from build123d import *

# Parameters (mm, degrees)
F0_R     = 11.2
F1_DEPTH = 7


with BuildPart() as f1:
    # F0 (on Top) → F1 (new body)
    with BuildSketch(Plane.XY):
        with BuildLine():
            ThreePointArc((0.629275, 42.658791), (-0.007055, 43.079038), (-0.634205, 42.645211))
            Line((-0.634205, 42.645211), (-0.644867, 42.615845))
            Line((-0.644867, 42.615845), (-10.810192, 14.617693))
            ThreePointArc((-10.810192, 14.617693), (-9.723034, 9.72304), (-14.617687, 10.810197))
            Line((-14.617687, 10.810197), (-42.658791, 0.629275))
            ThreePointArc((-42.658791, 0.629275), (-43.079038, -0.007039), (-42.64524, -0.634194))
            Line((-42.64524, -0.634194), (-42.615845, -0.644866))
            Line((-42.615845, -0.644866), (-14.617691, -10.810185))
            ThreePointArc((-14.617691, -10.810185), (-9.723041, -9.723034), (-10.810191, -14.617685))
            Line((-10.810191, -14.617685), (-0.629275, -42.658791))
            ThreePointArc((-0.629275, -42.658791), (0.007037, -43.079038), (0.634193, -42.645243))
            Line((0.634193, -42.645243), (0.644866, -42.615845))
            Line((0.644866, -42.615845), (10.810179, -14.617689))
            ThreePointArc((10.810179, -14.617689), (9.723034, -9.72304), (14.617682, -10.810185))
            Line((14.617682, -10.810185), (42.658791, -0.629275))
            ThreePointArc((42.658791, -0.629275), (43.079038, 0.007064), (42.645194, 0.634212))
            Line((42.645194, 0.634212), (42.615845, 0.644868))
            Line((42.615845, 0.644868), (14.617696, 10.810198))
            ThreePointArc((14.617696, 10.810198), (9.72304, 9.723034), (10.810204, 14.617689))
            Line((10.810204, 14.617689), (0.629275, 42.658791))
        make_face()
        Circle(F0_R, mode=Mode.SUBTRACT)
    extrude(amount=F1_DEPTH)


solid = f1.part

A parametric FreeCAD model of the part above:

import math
import FreeCAD as App
import Part
import Sketcher
Q = App.Units.Quantity

doc = App.newDocument("Part")
params = doc.addObject("Spreadsheet::Sheet", "Params")
for row, (alias, value) in enumerate([
    ("sketch1_diameter", "22.4 mm"),
    ("pad1_length", "7 mm"),
], start=1):
    params.set(f"A{row}", alias)
    params.set(f"B{row}", "=" + value)
    params.setAlias(f"B{row}", alias)

body = doc.addObject("PartDesign::Body", "Body")

# Sketch on XY plane
sketch1 = body.newObject("Sketcher::SketchObject", "Sketch")
sketch1.AttachmentSupport = (doc.getObject("XY_Plane"), [""])
sketch1.MapMode = "FlatFace"
sketch1.addGeometry(Part.ArcOfCircle(Part.Circle(App.Vector(0.000262, 42.398235, 0), App.Vector(0, 0, 1), 0.680842), math.radians(22.500805), math.radians(158.730788)), False)
sketch1.addGeometry(Part.LineSegment(App.Vector(-0.634205, 42.645211, 0), App.Vector(-0.644867, 42.615845, 0)), False)
sketch1.addGeometry(Part.LineSegment(App.Vector(-0.644867, 42.615845, 0), App.Vector(-10.810192, 14.617693, 0)), False)
sketch1.addGeometry(Part.ArcOfCircle(Part.Circle(App.Vector(-11.824366, 11.824372, 0), App.Vector(0, 0, 1), 2.971732), math.radians(-160.04549), math.radians(70.045505)), False)
sketch1.addGeometry(Part.LineSegment(App.Vector(-14.617687, 10.810197, 0), App.Vector(-42.658791, 0.629275, 0)), False)
sketch1.addGeometry(Part.ArcOfCircle(Part.Circle(App.Vector(-42.398235, 0.000262, 0), App.Vector(0, 0, 1), 0.680843), math.radians(112.500839), math.radians(248.728135)), False)
sketch1.addGeometry(Part.LineSegment(App.Vector(-42.64524, -0.634194, 0), App.Vector(-42.615845, -0.644866, 0)), False)
sketch1.addGeometry(Part.LineSegment(App.Vector(-42.615845, -0.644866, 0), App.Vector(-14.617691, -10.810185, 0)), False)
sketch1.addGeometry(Part.ArcOfCircle(Part.Circle(App.Vector(-11.824373, -11.824367, 0), App.Vector(0, 0, 1), 2.971732), math.radians(-70.045353), math.radians(160.045353)), False)
sketch1.addGeometry(Part.LineSegment(App.Vector(-10.810191, -14.617685, 0), App.Vector(-0.629275, -42.658791, 0)), False)
sketch1.addGeometry(Part.ArcOfCircle(Part.Circle(App.Vector(-0.000262, -42.398234, 0), App.Vector(0, 0, 1), 0.680843), math.radians(-157.499152), math.radians(-21.272145)), False)
sketch1.addGeometry(Part.LineSegment(App.Vector(0.634193, -42.645243, 0), App.Vector(0.644866, -42.615845, 0)), False)
sketch1.addGeometry(Part.LineSegment(App.Vector(0.644866, -42.615845, 0), App.Vector(10.810179, -14.617689, 0)), False)
sketch1.addGeometry(Part.ArcOfCircle(Part.Circle(App.Vector(11.824366, -11.824372, 0), App.Vector(0, 0, 1), 2.971732), math.radians(19.954767), math.radians(250.045248)), False)
sketch1.addGeometry(Part.LineSegment(App.Vector(14.617682, -10.810185, 0), App.Vector(42.658791, -0.629275, 0)), False)
sketch1.addGeometry(Part.ArcOfCircle(Part.Circle(App.Vector(42.398235, -0.000262, 0), App.Vector(0, 0, 1), 0.680842), math.radians(-67.499191), math.radians(68.732319)), False)
sketch1.addGeometry(Part.LineSegment(App.Vector(42.645194, 0.634212, 0), App.Vector(42.615845, 0.644868, 0)), False)
sketch1.addGeometry(Part.LineSegment(App.Vector(42.615845, 0.644868, 0), App.Vector(14.617696, 10.810198, 0)), False)
sketch1.addGeometry(Part.ArcOfCircle(Part.Circle(App.Vector(11.824372, 11.824366, 0), App.Vector(0, 0, 1), 2.971732), math.radians(109.954378), math.radians(340.045637)), False)
sketch1.addGeometry(Part.LineSegment(App.Vector(10.810204, 14.617689, 0), App.Vector(0.629275, 42.658791, 0)), False)
sketch1.addGeometry(Part.Circle(App.Vector(0, 0, 0), App.Vector(0, 0, 1), 11.2), False)
sketch1.addConstraint(Sketcher.Constraint("Coincident", 0, 2, 1, 1))
sketch1.addConstraint(Sketcher.Constraint("Coincident", 1, 2, 2, 1))
sketch1.addConstraint(Sketcher.Constraint("Coincident", 2, 2, 3, 2))
sketch1.addConstraint(Sketcher.Constraint("Coincident", 3, 1, 4, 1))
sketch1.addConstraint(Sketcher.Constraint("Coincident", 4, 2, 5, 1))
sketch1.addConstraint(Sketcher.Constraint("Coincident", 5, 2, 6, 1))
sketch1.addConstraint(Sketcher.Constraint("Coincident", 6, 2, 7, 1))
sketch1.addConstraint(Sketcher.Constraint("Coincident", 7, 2, 8, 2))
sketch1.addConstraint(Sketcher.Constraint("Coincident", 8, 1, 9, 1))
sketch1.addConstraint(Sketcher.Constraint("Coincident", 9, 2, 10, 1))
sketch1.addConstraint(Sketcher.Constraint("Coincident", 10, 2, 11, 1))
sketch1.addConstraint(Sketcher.Constraint("Coincident", 11, 2, 12, 1))
sketch1.addConstraint(Sketcher.Constraint("Coincident", 12, 2, 13, 2))
sketch1.addConstraint(Sketcher.Constraint("Coincident", 13, 1, 14, 1))
sketch1.addConstraint(Sketcher.Constraint("Coincident", 14, 2, 15, 1))
sketch1.addConstraint(Sketcher.Constraint("Coincident", 15, 2, 16, 1))
sketch1.addConstraint(Sketcher.Constraint("Coincident", 16, 2, 17, 1))
sketch1.addConstraint(Sketcher.Constraint("Coincident", 17, 2, 18, 2))
sketch1.addConstraint(Sketcher.Constraint("Coincident", 18, 1, 19, 1))
sketch1.addConstraint(Sketcher.Constraint("Coincident", 19, 2, 0, 1))
sketch1.addConstraint(Sketcher.Constraint("Coincident", 20, 3, -1, 1))
sketch1.addConstraint(Sketcher.Constraint("Diameter", 20, Q("22.4 mm")))
sketch1.addConstraint(Sketcher.Constraint("Radius", 0, Q("0.680842 mm")))
sketch1.addConstraint(Sketcher.Constraint("Radius", 3, Q("2.971732 mm")))
sketch1.addConstraint(Sketcher.Constraint("Radius", 5, Q("0.680843 mm")))
sketch1.addConstraint(Sketcher.Constraint("Radius", 8, Q("2.971732 mm")))
sketch1.addConstraint(Sketcher.Constraint("Radius", 10, Q("0.680843 mm")))
sketch1.addConstraint(Sketcher.Constraint("Radius", 13, Q("2.971732 mm")))
sketch1.addConstraint(Sketcher.Constraint("Radius", 15, Q("0.680842 mm")))
sketch1.addConstraint(Sketcher.Constraint("Radius", 18, Q("2.971732 mm")))
sketch1.addConstraint(Sketcher.Constraint("DistanceY", 8, 3, 0, 3, Q("54.222602 mm")))
sketch1.addConstraint(Sketcher.Constraint("DistanceX", 5, 3, 13, 3, Q("54.2226 mm")))
sketch1.addConstraint(Sketcher.Constraint("DistanceX", 3, 3, 15, 3, Q("54.222601 mm")))
sketch1.addConstraint(Sketcher.Constraint("DistanceX", 3, 3, 1, 2, Q("11.179499 mm")))
sketch1.addConstraint(Sketcher.Constraint("DistanceX", 4, 2, 2, 2, Q("31.848599 mm")))
sketch1.addConstraint(Sketcher.Constraint("DistanceY", 8, 3, 6, 2, Q("11.179501 mm")))
sketch1.addConstraint(Sketcher.Constraint("DistanceX", 7, 2, 2, 2, Q("3.807499 mm")))
sketch1.addConstraint(Sketcher.Constraint("DistanceX", 7, 2, 8, 1, Q("3.8075 mm")))
sketch1.addConstraint(Sketcher.Constraint("DistanceY", 8, 1, 7, 2, Q("3.8075 mm")))
sketch1.addConstraint(Sketcher.Constraint("DistanceY", 10, 2, 11, 2, Q("0.029398 mm")))
sketch1.addConstraint(Sketcher.Constraint("DistanceX", 11, 2, 13, 3, Q("11.1795 mm")))
sketch1.addConstraint(Sketcher.Constraint("DistanceY", 8, 1, 13, 1, Q("3.8075 mm")))
sketch1.addConstraint(Sketcher.Constraint("DistanceY", 18, 1, 19, 2, Q("28.041102 mm")))
sketch1.addConstraint(Sketcher.Constraint("DistanceY", 2, 2, 19, 2, Q("28.041098 mm")))
sketch1.addConstraint(Sketcher.Constraint("Distance", 1, Q("0.031242 mm")))
sketch1.addConstraint(Sketcher.Constraint("Distance", 4, Q("29.832108 mm")))
sketch1.addConstraint(Sketcher.Constraint("Distance", 7, Q("29.786412 mm")))
sketch1.addConstraint(Sketcher.Constraint("Distance", 9, Q("29.832108 mm")))
sketch1.addConstraint(Sketcher.Constraint("Distance", 12, Q("29.786412 mm")))
sketch1.addConstraint(Sketcher.Constraint("Distance", 14, Q("29.832109 mm")))
sketch1.addConstraint(Sketcher.Constraint("Distance", 17, Q("29.786411 mm")))
sketch1.addConstraint(Sketcher.Constraint("Distance", 19, Q("29.832109 mm")))
sketch1.addConstraint(Sketcher.Constraint("DistanceY", -1, 1, 3, 3, Q("11.824372 mm")))
sketch1.addConstraint(Sketcher.Constraint("DistanceY", -1, 1, 0, 2, Q("42.645211 mm")))
sketch1.addConstraint(Sketcher.Constraint("DistanceX", 4, 2, -1, 1, Q("42.658791 mm")))
sketch1.addConstraint(Sketcher.Constraint("DistanceX", 5, 2, -1, 1, Q("42.64524 mm")))
sketch1.addConstraint(Sketcher.Constraint("DistanceY", 9, 2, -1, 1, Q("42.658791 mm")))
sketch1.addConstraint(Sketcher.Constraint("DistanceX", -1, 1, 12, 2, Q("10.810179 mm")))
sketch1.addConstraint(Sketcher.Constraint("DistanceY", 12, 2, -1, 1, Q("14.617689 mm")))
sketch1.addConstraint(Sketcher.Constraint("DistanceX", -1, 1, 13, 1, Q("14.617682 mm")))
sketch1.addConstraint(Sketcher.Constraint("DistanceX", -1, 1, 14, 2, Q("42.658791 mm")))
sketch1.addConstraint(Sketcher.Constraint("DistanceY", -1, 1, 15, 2, Q("0.634212 mm")))
sketch1.addConstraint(Sketcher.Constraint("DistanceY", -1, 1, 18, 1, Q("14.617689 mm")))
sketch1.addConstraint(Sketcher.Constraint("DistanceX", 3, 3, 0, 3, Q("11.824629 mm")))
sketch1.addConstraint(Sketcher.Constraint("DistanceX", 5, 3, 3, 3, Q("30.573869 mm")))
sketch1.addConstraint(Sketcher.Constraint("DistanceX", 8, 3, 10, 3, Q("11.82411 mm")))
sketch1.addConstraint(Sketcher.Constraint("DistanceY", 13, 3, 18, 3, Q("23.648738 mm")))
sketch1.addConstraint(Sketcher.Constraint("DistanceX", 3, 1, 3, 3, Q("2.793321 mm")))
sketch1.addConstraint(Sketcher.Constraint("DistanceX", 16, 2, 15, 2, Q("0.029349 mm")))
sketch1.addConstraint(Sketcher.Constraint("DistanceX", 13, 3, 17, 2, Q("2.79333 mm")))
sketch1.setExpression("Constraints[21]", "Params.sketch1_diameter")
pad1 = body.newObject("PartDesign::Pad", "Pad")
pad1.Profile = sketch1
pad1.setExpression("Length", "Params.pad1_length")

doc.recompute()
